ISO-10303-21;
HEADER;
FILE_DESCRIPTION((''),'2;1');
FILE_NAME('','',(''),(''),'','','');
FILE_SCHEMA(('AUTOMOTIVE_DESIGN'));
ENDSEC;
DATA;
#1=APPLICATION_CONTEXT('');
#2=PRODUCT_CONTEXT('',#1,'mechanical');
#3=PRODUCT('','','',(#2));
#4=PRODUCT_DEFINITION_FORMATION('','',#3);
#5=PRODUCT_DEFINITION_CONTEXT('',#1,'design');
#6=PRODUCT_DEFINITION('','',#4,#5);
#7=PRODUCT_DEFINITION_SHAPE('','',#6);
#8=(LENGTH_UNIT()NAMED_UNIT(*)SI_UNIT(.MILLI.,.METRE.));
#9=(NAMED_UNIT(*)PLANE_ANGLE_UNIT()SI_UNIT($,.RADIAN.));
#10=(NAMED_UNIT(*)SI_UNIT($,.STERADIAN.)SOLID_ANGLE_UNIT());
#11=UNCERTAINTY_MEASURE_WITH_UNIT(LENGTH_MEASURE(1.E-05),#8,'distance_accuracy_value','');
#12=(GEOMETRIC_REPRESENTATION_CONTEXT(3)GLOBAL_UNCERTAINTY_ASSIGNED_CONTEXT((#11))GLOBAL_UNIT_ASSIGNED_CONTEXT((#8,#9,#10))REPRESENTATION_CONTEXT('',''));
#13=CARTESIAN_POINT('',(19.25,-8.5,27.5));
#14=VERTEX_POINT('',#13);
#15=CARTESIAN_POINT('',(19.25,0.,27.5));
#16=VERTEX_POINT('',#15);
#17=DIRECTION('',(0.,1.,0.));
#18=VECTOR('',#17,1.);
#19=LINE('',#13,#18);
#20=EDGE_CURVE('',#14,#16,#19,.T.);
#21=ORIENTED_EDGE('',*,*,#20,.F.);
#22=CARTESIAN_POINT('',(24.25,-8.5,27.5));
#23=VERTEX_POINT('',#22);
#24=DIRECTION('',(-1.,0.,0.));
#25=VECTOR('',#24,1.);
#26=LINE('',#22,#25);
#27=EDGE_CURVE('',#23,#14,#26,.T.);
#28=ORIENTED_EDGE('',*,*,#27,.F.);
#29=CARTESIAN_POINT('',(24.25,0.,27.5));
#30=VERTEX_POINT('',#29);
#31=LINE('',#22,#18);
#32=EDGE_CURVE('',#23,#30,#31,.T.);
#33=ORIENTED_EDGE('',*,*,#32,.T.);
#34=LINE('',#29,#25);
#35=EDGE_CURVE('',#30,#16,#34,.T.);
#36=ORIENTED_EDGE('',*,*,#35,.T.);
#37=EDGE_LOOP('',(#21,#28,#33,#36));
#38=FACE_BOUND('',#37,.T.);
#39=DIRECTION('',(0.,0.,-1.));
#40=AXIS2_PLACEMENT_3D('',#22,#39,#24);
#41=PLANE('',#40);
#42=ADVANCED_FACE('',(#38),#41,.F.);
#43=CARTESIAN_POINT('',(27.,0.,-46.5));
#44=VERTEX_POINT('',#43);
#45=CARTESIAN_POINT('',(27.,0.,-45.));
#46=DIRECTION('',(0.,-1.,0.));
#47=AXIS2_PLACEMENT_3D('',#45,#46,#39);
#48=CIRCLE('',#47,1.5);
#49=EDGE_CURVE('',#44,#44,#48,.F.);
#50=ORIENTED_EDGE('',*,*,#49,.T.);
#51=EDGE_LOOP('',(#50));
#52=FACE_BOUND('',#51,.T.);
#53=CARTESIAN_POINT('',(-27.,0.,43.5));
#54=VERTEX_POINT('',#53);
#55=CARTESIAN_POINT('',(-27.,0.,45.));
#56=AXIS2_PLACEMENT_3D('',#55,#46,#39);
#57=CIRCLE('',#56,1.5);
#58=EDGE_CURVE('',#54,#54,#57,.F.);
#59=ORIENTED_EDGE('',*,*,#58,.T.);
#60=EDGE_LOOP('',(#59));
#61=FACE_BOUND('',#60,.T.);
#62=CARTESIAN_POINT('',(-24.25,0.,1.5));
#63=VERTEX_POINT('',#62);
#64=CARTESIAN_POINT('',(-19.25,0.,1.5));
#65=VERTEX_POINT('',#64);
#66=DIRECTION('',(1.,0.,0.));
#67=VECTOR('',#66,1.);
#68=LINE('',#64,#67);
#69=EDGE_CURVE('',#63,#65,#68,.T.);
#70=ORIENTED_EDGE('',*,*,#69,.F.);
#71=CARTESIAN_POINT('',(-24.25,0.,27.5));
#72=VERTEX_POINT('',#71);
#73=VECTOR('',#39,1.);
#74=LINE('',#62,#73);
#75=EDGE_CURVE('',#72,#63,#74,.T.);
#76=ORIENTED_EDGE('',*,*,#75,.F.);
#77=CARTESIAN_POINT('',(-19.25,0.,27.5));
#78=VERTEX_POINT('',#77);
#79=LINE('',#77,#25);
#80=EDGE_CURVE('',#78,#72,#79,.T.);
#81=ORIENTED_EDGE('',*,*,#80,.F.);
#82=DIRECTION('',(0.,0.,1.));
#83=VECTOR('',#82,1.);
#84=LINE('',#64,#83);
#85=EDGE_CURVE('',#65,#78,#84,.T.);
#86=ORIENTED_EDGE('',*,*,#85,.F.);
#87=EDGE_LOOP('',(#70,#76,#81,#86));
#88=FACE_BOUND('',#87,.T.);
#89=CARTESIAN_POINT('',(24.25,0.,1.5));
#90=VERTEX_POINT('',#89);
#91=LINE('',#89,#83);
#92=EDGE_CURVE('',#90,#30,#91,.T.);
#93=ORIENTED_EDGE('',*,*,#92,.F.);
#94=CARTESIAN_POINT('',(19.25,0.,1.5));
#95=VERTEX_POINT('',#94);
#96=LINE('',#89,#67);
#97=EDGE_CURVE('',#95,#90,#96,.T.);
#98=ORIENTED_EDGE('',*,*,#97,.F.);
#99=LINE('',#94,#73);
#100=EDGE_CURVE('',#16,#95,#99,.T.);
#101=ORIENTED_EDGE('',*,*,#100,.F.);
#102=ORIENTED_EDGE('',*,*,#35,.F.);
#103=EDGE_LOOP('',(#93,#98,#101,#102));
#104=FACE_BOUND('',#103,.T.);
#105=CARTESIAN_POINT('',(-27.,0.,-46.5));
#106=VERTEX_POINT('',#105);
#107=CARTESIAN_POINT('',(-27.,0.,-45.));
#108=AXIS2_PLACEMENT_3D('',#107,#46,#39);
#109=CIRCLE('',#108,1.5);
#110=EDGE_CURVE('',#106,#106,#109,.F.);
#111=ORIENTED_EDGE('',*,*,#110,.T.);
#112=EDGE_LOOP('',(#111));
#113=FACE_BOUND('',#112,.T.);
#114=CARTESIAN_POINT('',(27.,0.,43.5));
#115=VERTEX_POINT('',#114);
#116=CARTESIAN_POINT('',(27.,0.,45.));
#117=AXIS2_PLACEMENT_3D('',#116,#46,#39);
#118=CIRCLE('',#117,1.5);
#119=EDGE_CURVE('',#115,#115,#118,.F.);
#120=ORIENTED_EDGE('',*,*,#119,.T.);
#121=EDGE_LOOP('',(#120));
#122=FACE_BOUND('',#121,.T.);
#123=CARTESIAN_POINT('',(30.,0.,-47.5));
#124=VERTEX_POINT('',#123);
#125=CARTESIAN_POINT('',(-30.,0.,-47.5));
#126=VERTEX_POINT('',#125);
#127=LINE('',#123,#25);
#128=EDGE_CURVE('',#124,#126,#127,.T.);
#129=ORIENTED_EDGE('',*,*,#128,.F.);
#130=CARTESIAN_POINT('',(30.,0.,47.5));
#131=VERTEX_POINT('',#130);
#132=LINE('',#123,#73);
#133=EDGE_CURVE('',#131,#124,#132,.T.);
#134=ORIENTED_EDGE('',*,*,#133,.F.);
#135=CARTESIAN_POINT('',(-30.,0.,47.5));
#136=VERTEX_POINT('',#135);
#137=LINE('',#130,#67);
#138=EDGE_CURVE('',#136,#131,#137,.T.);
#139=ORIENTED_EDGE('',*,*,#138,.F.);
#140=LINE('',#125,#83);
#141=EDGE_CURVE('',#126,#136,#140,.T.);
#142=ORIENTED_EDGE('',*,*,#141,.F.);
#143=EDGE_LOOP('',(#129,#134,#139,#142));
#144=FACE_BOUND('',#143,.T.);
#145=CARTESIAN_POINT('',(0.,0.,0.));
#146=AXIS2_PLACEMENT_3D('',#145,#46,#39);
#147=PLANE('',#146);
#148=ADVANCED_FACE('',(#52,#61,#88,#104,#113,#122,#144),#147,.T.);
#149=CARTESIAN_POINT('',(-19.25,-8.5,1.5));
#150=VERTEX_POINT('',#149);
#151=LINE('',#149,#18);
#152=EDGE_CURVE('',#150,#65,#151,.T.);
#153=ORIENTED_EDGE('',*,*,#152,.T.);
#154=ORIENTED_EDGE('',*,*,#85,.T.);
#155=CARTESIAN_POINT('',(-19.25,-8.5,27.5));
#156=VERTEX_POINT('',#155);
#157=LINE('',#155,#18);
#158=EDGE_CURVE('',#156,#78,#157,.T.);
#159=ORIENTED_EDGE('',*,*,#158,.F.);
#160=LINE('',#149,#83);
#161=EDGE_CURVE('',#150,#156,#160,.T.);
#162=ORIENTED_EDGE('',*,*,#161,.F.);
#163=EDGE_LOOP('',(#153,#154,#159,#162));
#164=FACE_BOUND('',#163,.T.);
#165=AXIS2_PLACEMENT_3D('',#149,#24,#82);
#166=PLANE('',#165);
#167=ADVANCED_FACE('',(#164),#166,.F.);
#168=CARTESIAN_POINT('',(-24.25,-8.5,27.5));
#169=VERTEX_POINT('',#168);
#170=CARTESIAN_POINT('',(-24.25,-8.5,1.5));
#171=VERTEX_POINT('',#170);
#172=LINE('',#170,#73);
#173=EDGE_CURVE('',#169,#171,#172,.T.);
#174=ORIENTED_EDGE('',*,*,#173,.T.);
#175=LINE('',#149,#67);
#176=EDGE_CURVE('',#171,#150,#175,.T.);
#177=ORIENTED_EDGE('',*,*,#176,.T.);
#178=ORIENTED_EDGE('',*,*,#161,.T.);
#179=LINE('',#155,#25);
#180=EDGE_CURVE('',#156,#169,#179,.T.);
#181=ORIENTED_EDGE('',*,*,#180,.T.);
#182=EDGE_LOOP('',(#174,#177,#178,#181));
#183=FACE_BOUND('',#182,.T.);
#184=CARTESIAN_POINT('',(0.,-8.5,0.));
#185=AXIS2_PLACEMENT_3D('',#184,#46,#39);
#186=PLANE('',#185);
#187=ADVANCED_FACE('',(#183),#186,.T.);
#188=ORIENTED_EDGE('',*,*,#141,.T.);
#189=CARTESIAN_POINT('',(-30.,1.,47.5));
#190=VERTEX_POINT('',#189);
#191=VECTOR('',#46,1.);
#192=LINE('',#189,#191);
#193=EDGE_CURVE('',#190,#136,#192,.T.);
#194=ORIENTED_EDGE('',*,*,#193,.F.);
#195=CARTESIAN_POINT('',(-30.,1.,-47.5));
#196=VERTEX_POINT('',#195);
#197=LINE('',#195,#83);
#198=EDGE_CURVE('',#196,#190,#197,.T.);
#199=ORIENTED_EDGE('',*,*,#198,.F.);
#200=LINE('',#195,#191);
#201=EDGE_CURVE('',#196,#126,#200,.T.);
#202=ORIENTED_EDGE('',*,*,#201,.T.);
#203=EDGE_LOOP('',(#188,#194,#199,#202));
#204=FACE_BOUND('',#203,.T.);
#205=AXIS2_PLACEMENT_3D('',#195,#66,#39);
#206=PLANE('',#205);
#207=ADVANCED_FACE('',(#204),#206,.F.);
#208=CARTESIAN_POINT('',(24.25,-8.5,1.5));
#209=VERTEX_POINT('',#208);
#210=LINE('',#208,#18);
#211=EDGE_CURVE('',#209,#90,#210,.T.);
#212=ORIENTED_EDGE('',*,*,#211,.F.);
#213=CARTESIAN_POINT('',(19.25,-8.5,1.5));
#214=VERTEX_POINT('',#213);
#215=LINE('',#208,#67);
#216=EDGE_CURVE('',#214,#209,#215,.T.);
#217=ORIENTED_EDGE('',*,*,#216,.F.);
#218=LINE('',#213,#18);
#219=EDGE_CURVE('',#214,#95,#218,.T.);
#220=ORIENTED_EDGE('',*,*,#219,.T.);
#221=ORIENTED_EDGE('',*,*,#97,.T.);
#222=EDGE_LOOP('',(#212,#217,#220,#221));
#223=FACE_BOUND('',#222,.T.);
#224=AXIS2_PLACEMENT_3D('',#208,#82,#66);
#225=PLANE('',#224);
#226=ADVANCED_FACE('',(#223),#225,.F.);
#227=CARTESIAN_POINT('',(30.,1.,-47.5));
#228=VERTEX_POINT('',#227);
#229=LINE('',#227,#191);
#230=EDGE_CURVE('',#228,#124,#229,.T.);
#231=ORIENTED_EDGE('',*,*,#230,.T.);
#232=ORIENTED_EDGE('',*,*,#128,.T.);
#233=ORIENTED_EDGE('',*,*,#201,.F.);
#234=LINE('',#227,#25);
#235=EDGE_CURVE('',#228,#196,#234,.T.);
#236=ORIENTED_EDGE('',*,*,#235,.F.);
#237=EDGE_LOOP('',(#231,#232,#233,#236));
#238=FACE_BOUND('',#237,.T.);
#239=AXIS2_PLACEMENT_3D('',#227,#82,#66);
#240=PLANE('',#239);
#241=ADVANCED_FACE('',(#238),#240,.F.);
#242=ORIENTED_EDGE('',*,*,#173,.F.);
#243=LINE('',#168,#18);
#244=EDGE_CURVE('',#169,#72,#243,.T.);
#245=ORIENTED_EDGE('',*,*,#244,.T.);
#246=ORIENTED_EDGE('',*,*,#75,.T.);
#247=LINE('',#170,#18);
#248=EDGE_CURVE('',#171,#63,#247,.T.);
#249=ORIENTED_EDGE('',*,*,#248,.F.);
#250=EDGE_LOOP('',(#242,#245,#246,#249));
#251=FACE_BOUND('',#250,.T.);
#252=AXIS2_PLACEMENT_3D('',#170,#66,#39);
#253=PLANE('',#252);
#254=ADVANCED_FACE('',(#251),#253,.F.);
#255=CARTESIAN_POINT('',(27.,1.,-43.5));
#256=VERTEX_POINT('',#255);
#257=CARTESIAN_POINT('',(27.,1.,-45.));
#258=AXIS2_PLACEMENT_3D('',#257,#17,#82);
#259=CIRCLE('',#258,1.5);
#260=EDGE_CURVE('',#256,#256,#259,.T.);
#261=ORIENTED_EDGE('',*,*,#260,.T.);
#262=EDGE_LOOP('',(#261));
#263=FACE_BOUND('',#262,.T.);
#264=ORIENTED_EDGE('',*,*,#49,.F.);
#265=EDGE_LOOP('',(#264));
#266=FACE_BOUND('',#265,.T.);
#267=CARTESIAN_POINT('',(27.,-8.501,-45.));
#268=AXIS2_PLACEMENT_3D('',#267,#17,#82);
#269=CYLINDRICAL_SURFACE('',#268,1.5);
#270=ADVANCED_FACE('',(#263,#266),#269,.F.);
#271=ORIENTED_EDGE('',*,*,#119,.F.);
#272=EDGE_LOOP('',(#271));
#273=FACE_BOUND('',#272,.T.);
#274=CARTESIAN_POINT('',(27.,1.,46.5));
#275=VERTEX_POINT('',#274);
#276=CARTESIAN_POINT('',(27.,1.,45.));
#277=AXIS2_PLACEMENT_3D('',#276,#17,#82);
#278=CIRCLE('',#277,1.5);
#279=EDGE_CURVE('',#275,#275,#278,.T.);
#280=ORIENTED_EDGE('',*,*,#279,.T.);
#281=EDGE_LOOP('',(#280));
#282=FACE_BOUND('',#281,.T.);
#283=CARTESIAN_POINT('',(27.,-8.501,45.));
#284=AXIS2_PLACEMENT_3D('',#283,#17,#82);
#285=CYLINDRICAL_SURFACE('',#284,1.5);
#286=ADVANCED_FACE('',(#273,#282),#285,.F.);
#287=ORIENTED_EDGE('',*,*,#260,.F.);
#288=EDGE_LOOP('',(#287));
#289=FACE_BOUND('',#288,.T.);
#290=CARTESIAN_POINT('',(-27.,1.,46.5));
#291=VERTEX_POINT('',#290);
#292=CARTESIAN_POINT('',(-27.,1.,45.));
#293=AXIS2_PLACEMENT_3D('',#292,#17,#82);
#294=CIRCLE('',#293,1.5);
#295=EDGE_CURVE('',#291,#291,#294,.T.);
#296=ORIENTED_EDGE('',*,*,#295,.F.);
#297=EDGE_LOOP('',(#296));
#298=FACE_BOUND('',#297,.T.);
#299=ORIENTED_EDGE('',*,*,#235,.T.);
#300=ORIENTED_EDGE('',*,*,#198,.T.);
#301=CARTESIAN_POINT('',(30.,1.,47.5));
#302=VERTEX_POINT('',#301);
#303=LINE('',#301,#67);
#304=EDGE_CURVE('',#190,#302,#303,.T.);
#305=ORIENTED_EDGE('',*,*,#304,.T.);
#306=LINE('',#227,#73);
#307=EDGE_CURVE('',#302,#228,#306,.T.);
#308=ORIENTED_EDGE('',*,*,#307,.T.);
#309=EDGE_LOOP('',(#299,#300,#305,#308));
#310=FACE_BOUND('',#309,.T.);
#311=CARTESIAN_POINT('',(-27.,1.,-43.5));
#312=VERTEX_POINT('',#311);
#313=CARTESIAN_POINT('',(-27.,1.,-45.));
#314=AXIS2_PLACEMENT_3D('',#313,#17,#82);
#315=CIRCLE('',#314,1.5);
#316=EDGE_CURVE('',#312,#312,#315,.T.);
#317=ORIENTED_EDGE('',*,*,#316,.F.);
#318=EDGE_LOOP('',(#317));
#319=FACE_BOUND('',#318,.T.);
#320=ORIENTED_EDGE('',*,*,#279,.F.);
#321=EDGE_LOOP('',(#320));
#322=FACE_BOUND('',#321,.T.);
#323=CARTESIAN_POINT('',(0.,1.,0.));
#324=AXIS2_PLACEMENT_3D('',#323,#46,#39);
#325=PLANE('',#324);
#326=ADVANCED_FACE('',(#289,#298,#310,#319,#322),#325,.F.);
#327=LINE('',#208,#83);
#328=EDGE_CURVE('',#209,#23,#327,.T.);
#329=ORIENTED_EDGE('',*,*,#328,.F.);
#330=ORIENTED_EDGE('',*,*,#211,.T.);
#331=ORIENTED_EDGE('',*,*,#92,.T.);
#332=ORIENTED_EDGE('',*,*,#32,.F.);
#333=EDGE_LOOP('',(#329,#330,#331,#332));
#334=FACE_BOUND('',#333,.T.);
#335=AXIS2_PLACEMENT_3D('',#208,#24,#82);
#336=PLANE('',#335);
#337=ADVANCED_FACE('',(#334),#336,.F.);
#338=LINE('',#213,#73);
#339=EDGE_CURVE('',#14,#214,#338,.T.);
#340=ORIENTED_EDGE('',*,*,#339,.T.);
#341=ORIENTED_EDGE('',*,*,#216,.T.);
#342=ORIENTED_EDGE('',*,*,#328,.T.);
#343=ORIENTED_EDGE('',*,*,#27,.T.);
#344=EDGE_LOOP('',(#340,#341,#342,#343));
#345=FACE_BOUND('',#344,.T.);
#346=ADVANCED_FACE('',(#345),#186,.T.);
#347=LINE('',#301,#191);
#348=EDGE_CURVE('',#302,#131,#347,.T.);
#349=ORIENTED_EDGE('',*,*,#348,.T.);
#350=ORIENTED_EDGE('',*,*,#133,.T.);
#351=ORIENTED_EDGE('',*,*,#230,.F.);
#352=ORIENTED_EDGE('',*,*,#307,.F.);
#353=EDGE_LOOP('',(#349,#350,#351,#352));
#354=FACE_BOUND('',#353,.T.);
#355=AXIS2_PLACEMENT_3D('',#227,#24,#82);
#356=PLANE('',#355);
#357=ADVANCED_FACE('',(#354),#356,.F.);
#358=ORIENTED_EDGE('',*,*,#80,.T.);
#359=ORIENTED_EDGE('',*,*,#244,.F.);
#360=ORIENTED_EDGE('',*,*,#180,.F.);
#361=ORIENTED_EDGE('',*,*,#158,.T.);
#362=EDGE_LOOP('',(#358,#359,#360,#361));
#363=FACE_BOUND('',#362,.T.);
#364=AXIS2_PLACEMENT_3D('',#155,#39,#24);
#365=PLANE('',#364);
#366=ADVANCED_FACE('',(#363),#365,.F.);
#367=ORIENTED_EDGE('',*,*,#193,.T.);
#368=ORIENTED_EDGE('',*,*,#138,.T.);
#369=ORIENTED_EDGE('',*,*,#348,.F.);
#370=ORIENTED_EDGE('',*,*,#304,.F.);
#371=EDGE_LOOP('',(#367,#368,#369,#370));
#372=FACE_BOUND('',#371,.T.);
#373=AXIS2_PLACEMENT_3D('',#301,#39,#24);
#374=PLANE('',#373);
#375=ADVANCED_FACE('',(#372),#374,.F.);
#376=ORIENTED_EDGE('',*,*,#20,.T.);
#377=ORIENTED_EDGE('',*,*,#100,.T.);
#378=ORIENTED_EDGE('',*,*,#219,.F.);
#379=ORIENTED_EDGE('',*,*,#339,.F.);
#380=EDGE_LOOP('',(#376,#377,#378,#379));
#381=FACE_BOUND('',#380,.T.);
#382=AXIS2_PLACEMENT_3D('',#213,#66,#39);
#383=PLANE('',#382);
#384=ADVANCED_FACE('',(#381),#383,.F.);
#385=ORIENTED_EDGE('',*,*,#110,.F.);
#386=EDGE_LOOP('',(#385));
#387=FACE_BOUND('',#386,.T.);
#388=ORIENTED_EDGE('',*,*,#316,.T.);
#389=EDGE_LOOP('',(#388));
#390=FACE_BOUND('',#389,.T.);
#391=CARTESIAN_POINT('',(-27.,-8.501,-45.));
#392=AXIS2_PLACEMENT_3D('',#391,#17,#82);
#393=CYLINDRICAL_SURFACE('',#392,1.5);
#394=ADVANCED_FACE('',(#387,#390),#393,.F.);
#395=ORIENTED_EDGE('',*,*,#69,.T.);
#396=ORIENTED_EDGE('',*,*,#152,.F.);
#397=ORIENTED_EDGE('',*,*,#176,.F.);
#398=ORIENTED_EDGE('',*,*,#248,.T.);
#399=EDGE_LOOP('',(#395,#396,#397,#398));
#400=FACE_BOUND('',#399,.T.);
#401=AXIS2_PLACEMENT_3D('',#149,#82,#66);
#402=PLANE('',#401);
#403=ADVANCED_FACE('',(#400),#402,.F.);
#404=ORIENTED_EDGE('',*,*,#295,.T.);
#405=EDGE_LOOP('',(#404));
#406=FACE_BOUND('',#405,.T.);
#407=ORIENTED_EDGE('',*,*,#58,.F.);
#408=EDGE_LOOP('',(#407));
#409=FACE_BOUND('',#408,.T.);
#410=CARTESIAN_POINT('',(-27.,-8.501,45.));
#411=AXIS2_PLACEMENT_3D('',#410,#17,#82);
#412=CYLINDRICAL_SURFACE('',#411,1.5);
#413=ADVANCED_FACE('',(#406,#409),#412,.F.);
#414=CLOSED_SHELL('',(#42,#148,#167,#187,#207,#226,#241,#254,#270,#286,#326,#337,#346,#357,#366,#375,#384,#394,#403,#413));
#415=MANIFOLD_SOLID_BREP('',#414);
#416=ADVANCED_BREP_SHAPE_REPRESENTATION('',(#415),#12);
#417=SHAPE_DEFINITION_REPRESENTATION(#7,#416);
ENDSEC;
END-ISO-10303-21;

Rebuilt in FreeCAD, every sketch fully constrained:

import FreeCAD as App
import Part
import Sketcher

V = App.Vector


def add_polygon(sketch, points):
    """Adds a closed chain of lines whose ends are joined by coincident constraints."""
    first, n = sketch.GeometryCount, len(points)
    for a, b in zip(points, points[1:] + points[:1]):
        sketch.addGeometry(Part.LineSegment(App.Vector(*a, 0), App.Vector(*b, 0)), False)
    for i in range(n):
        sketch.addConstraint(Sketcher.Constraint("Coincident", first + i, 2, first + (i + 1) % n, 1))

doc = App.newDocument("Part")
params = doc.addObject("Spreadsheet::Sheet", "Params")
for row, (alias, value) in enumerate([
    ("sketch1_width", "60 mm"),
    ("sketch1_height", "95 mm"),
    ("pad1_length", "1 mm"),
    ("sketch2_width", "5 mm"),
    ("sketch2_height", "26 mm"),
    ("pad2_length", "8.5 mm"),
    ("sketch3_diameter", "3 mm"),
    ("sketch4_diameter", "3 mm"),
    ("sketch5_diameter", "3 mm"),
    ("sketch6_diameter", "3 mm"),
], start=1):
    params.set(f"A{row}", alias)
    params.set(f"B{row}", "=" + value)
    params.setAlias(f"B{row}", alias)

body = doc.addObject("PartDesign::Body", "Body")

# Sketch on XZ plane
sketch1 = body.newObject("Sketcher::SketchObject", "Sketch")
sketch1.AttachmentSupport = (doc.getObject("XZ_Plane"), [""])
sketch1.MapMode = "FlatFace"
add_polygon(sketch1, [(-30, -47.5), (-30, 47.5), (30, 47.5), (30, -47.5)])  # lines 0-3
sketch1.addConstraint([
    Sketcher.Constraint("Vertical", 0),
    Sketcher.Constraint("Horizontal", 1),
    Sketcher.Constraint("Vertical", 2),
    Sketcher.Constraint("Horizontal", 3),
    Sketcher.Constraint("Symmetric", 0, 2, 2, 2, -1, 1),
    Sketcher.Constraint("DistanceX", 1, 1, 1, 2, 60.0),
    Sketcher.Constraint("DistanceY", 0, 1, 0, 2, 95.0),
])
sketch1.setExpression("Constraints[9]", "Params.sketch1_width")
sketch1.setExpression("Constraints[10]", "Params.sketch1_height")
pad1 = body.newObject("PartDesign::Pad", "Pad")
pad1.Profile = sketch1
pad1.setExpression("Length", "Params.pad1_length")
pad1.Reversed = True

# Sketch on XZ plane
sketch2 = body.newObject("Sketcher::SketchObject", "Sketch001")
sketch2.AttachmentSupport = (doc.getObject("XZ_Plane"), [""])
sketch2.MapMode = "FlatFace"
add_polygon(sketch2, [(19.25, 27.5), (19.25, 1.5), (24.25, 1.5), (24.25, 27.5)])  # lines 0-3
add_polygon(sketch2, [(-24.25, 27.5), (-24.25, 1.5), (-19.25, 1.5), (-19.25, 27.5)])  # lines 4-7
sketch2.addConstraint([
    Sketcher.Constraint("Vertical", 0),
    Sketcher.Constraint("Horizontal", 1),
    Sketcher.Constraint("Vertical", 2),
    Sketcher.Constraint("Horizontal", 3),
    Sketcher.Constraint("Vertical", 4),
    Sketcher.Constraint("Horizontal", 5),
    Sketcher.Constraint("Vertical", 6),
    Sketcher.Constraint("Horizontal", 7),
    Sketcher.Constraint("Symmetric", 1, 2, 4, 2, -2),
    Sketcher.Constraint("Symmetric", 3, 2, 6, 2, -2),
    Sketcher.Constraint("DistanceX", 1, 1, 1, 2, 5.0),
    Sketcher.Constraint("DistanceY", 0, 2, 0, 1, 26.0),
    Sketcher.Constraint("DistanceY", -1, 1, 0, 2, 1.5),
    Sketcher.Constraint("DistanceX", 4, 2, 0, 2, 43.5),
])
sketch2.setExpression("Constraints[18]", "Params.sketch2_width")
sketch2.setExpression("Constraints[19]", "Params.sketch2_height")
pad2 = body.newObject("PartDesign::Pad", "Pad001")
pad2.Profile = sketch2
pad2.setExpression("Length", "Params.pad2_length")

# Sketch on XZ plane
sketch3 = body.newObject("Sketcher::SketchObject", "Sketch002")
sketch3.AttachmentSupport = (doc.getObject("XZ_Plane"), [""])
sketch3.MapMode = "FlatFace"
sketch3.AttachmentOffset = App.Placement(V(0, 0, -1), App.Rotation())
sketch3.addGeometry(Part.Circle(V(-27, 45, 0), V(0, 0, 1), 1.5), False)
sketch3.addConstraint([
    Sketcher.Constraint("Diameter", 0, 3.0),
    Sketcher.Constraint("DistanceX", 0, 3, -1, 1, 27.0),
    Sketcher.Constraint("DistanceY", -1, 1, 0, 3, 45.0),
])
sketch3.setExpression("Constraints[0]", "Params.sketch3_diameter")
pocket1 = body.newObject("PartDesign::Pocket", "Pocket")
pocket1.Profile = sketch3
pocket1.Type = "UpToFirst"
pocket1.Reversed = True

# Sketch on XZ plane
sketch4 = body.newObject("Sketcher::SketchObject", "Sketch003")
sketch4.AttachmentSupport = (doc.getObject("XZ_Plane"), [""])
sketch4.MapMode = "FlatFace"
sketch4.AttachmentOffset = App.Placement(V(0, 0, -1), App.Rotation())
sketch4.addGeometry(Part.Circle(V(27, 45, 0), V(0, 0, 1), 1.5), False)
sketch4.addConstraint([
    Sketcher.Constraint("Diameter", 0, 3.0),
    Sketcher.Constraint("DistanceX", -1, 1, 0, 3, 27.0),
    Sketcher.Constraint("DistanceY", -1, 1, 0, 3, 45.0),
])
sketch4.setExpression("Constraints[0]", "Params.sketch4_diameter")
pocket2 = body.newObject("PartDesign::Pocket", "Pocket001")
pocket2.Profile = sketch4
pocket2.Type = "UpToFirst"
pocket2.Reversed = True

# Sketch on XZ plane
sketch5 = body.newObject("Sketcher::SketchObject", "Sketch004")
sketch5.AttachmentSupport = (doc.getObject("XZ_Plane"), [""])
sketch5.MapMode = "FlatFace"
sketch5.AttachmentOffset = App.Placement(V(0, 0, -1), App.Rotation())
sketch5.addGeometry(Part.Circle(V(27, -45, 0), V(0, 0, 1), 1.5), False)
sketch5.addConstraint([
    Sketcher.Constraint("Diameter", 0, 3.0),
    Sketcher.Constraint("DistanceX", -1, 1, 0, 3, 27.0),
    Sketcher.Constraint("DistanceY", 0, 3, -1, 1, 45.0),
])
sketch5.setExpression("Constraints[0]", "Params.sketch5_diameter")
pocket3 = body.newObject("PartDesign::Pocket", "Pocket002")
pocket3.Profile = sketch5
pocket3.Type = "UpToFirst"
pocket3.Reversed = True

# Sketch on XZ plane
sketch6 = body.newObject("Sketcher::SketchObject", "Sketch005")
sketch6.AttachmentSupport = (doc.getObject("XZ_Plane"), [""])
sketch6.MapMode = "FlatFace"
sketch6.AttachmentOffset = App.Placement(V(0, 0, -1), App.Rotation())
sketch6.addGeometry(Part.Circle(V(-27, -45, 0), V(0, 0, 1), 1.5), False)
sketch6.addConstraint([
    Sketcher.Constraint("Diameter", 0, 3.0),
    Sketcher.Constraint("DistanceX", 0, 3, -1, 1, 27.0),
    Sketcher.Constraint("DistanceY", 0, 3, -1, 1, 45.0),
])
sketch6.setExpression("Constraints[0]", "Params.sketch6_diameter")
pocket4 = body.newObject("PartDesign::Pocket", "Pocket003")
pocket4.Profile = sketch6
pocket4.Type = "UpToFirst"
pocket4.Reversed = True

doc.recompute()
